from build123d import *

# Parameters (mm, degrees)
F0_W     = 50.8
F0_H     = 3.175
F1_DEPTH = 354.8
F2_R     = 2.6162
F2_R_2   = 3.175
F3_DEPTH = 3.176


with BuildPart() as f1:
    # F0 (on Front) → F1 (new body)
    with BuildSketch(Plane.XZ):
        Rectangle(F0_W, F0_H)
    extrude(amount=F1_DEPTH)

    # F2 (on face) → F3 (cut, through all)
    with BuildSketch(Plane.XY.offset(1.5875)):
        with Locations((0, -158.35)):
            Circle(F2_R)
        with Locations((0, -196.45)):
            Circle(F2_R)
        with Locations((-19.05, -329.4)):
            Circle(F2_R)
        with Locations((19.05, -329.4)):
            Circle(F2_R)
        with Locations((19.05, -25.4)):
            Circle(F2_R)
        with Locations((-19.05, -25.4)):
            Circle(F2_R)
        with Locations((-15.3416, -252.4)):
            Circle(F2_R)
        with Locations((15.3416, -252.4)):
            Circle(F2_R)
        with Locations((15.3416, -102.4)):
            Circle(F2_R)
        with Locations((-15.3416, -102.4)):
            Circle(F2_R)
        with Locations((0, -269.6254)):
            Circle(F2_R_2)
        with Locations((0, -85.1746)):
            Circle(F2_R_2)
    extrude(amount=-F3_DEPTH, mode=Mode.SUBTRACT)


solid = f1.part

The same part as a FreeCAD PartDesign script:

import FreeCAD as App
import Part
import Sketcher
Q = App.Units.Quantity


def add_polygon(sketch, points):
    """Adds a closed chain of lines whose ends are joined by coincident constraints."""
    first, n = sketch.GeometryCount, len(points)
    for a, b in zip(points, points[1:] + points[:1]):
        sketch.addGeometry(Part.LineSegment(App.Vector(*a, 0), App.Vector(*b, 0)), False)
    for i in range(n):
        sketch.addConstraint(Sketcher.Constraint("Coincident", first + i, 2, first + (i + 1) % n, 1))

doc = App.newDocument("Part")
body = doc.addObject("PartDesign::Body", "Body")

sketch1 = doc.addObject("Sketcher::SketchObject", "Sketch")
body.addObject(sketch1)
sketch1.AttachmentSupport = (doc.XZ_Plane, [""])
sketch1.MapMode = "FlatFace"
add_polygon(sketch1, [(-25.4, 1.6), (-25.4, -1.6), (25.4, -1.6), (25.4, 1.6)])
sketch1.addConstraint([
    Sketcher.Constraint("Vertical", 0),
    Sketcher.Constraint("Horizontal", 1),
    Sketcher.Constraint("Vertical", 2),
    Sketcher.Constraint("Horizontal", 3),
    Sketcher.Constraint("Symmetric", 0, 2, 2, 2, -1, 1),
    Sketcher.Constraint("DistanceX", 1, 1, 1, 2, Q("2 in")),
    Sketcher.Constraint("DistanceY", 0, 2, 0, 1, Q("0.125 in")),
])
pad1 = doc.addObject("PartDesign::Pad", "Pad")
body.addObject(pad1)
pad1.Profile = sketch1
pad1.Length = 354.8

sketch2 = doc.addObject("Sketcher::SketchObject", "Sketch001")
body.addObject(sketch2)
sketch2.AttachmentSupport = (doc.XY_Plane, [""])
sketch2.MapMode = "FlatFace"
sketch2.AttachmentOffset = App.Placement(App.Vector(0, 0, 0.0625 * 25.4), App.Rotation())
sketch2.addGeometry([
    Part.Circle(App.Vector(0, -158.3, 0), App.Vector(0, 0, 1), 2.6),
    Part.Circle(App.Vector(0, -196.4, 0), App.Vector(0, 0, 1), 2.6),
    Part.Circle(App.Vector(-19.1, -329.4, 0), App.Vector(0, 0, 1), 2.6),
    Part.Circle(App.Vector(19.1, -329.4, 0), App.Vector(0, 0, 1), 2.6),
    Part.Circle(App.Vector(19.1, -25.4, 0), App.Vector(0, 0, 1), 2.6),
    Part.Circle(App.Vector(-19.1, -25.4, 0), App.Vector(0, 0, 1), 2.6),
    Part.Circle(App.Vector(-15.3, -252.4, 0), App.Vector(0, 0, 1), 2.6),
    Part.Circle(App.Vector(15.3, -252.4, 0), App.Vector(0, 0, 1), 2.6),
    Part.Circle(App.Vector(15.3, -102.4, 0), App.Vector(0, 0, 1), 2.6),
    Part.Circle(App.Vector(-15.3, -102.4, 0), App.Vector(0, 0, 1), 2.6),
    Part.Circle(App.Vector(0, -269.6, 0), App.Vector(0, 0, 1), 3.2),
    Part.Circle(App.Vector(0, -85.2, 0), App.Vector(0, 0, 1), 3.2),
], False)
sketch2.addConstraint([
    Sketcher.Constraint("Equal", 0, 1),
    Sketcher.Constraint("Equal", 1, 2),
    Sketcher.Constraint("Equal", 2, 3),
    Sketcher.Constraint("Equal", 3, 4),
    Sketcher.Constraint("Equal", 4, 5),
    Sketcher.Constraint("Equal", 5, 6),
    Sketcher.Constraint("Equal", 6, 7),
    Sketcher.Constraint("Equal", 7, 8),
    Sketcher.Constraint("Equal", 8, 9),
    Sketcher.Constraint("Equal", 10, 11),
    Sketcher.Constraint("Symmetric", 2, 3, 3, 3, -2),
    Sketcher.Constraint("Symmetric", 4, 3, 5, 3, -2),
    Sketcher.Constraint("Symmetric", 6, 3, 7, 3, -2),
    Sketcher.Constraint("Symmetric", 8, 3, 9, 3, -2),
    Sketcher.Constraint("PointOnObject", 0, 3, -2),
    Sketcher.Constraint("PointOnObject", 1, 3, -2),
    Sketcher.Constraint("PointOnObject", 10, 3, -2),
    Sketcher.Constraint("PointOnObject", 11, 3, -2),
    Sketcher.Constraint("Vertical", 3, 3, 4, 3),
    Sketcher.Constraint("Vertical", 7, 3, 8, 3),
    Sketcher.Constraint("Diameter", 10, Q("0.25 in")),
    Sketcher.Constraint("Diameter", 0, Q("0.206 in")),
    Sketcher.Constraint("DistanceY", 4, 3, -1, 1, Q("1 in")),
    Sketcher.Constraint("DistanceY", 1, 3, 0, 3, Q("1.5 in")),
    Sketcher.Constraint("DistanceX", 2, 3, 3, 3, Q("1.5 in")),
    Sketcher.Constraint("DistanceX", 6, 3, -1, 1, Q("0.604 in")),
    Sketcher.Constraint("DistanceY", 0, 3, -1, 1, 158.35),
    Sketcher.Constraint("DistanceY", 2, 3, -1, 1, 329.4),
    Sketcher.Constraint("DistanceY", 6, 3, -1, 1, 252.4),
    Sketcher.Constraint("DistanceY", 8, 3, -1, 1, 102.4),
    Sketcher.Constraint("DistanceY", 10, 3, -1, 1, 269.6254),
    Sketcher.Constraint("DistanceY", 11, 3, -1, 1, 85.1746),
])
pocket1 = doc.addObject("PartDesign::Pocket", "Pocket")
body.addObject(pocket1)
pocket1.Profile = sketch2
pocket1.Type = "ThroughAll"

doc.recompute()
